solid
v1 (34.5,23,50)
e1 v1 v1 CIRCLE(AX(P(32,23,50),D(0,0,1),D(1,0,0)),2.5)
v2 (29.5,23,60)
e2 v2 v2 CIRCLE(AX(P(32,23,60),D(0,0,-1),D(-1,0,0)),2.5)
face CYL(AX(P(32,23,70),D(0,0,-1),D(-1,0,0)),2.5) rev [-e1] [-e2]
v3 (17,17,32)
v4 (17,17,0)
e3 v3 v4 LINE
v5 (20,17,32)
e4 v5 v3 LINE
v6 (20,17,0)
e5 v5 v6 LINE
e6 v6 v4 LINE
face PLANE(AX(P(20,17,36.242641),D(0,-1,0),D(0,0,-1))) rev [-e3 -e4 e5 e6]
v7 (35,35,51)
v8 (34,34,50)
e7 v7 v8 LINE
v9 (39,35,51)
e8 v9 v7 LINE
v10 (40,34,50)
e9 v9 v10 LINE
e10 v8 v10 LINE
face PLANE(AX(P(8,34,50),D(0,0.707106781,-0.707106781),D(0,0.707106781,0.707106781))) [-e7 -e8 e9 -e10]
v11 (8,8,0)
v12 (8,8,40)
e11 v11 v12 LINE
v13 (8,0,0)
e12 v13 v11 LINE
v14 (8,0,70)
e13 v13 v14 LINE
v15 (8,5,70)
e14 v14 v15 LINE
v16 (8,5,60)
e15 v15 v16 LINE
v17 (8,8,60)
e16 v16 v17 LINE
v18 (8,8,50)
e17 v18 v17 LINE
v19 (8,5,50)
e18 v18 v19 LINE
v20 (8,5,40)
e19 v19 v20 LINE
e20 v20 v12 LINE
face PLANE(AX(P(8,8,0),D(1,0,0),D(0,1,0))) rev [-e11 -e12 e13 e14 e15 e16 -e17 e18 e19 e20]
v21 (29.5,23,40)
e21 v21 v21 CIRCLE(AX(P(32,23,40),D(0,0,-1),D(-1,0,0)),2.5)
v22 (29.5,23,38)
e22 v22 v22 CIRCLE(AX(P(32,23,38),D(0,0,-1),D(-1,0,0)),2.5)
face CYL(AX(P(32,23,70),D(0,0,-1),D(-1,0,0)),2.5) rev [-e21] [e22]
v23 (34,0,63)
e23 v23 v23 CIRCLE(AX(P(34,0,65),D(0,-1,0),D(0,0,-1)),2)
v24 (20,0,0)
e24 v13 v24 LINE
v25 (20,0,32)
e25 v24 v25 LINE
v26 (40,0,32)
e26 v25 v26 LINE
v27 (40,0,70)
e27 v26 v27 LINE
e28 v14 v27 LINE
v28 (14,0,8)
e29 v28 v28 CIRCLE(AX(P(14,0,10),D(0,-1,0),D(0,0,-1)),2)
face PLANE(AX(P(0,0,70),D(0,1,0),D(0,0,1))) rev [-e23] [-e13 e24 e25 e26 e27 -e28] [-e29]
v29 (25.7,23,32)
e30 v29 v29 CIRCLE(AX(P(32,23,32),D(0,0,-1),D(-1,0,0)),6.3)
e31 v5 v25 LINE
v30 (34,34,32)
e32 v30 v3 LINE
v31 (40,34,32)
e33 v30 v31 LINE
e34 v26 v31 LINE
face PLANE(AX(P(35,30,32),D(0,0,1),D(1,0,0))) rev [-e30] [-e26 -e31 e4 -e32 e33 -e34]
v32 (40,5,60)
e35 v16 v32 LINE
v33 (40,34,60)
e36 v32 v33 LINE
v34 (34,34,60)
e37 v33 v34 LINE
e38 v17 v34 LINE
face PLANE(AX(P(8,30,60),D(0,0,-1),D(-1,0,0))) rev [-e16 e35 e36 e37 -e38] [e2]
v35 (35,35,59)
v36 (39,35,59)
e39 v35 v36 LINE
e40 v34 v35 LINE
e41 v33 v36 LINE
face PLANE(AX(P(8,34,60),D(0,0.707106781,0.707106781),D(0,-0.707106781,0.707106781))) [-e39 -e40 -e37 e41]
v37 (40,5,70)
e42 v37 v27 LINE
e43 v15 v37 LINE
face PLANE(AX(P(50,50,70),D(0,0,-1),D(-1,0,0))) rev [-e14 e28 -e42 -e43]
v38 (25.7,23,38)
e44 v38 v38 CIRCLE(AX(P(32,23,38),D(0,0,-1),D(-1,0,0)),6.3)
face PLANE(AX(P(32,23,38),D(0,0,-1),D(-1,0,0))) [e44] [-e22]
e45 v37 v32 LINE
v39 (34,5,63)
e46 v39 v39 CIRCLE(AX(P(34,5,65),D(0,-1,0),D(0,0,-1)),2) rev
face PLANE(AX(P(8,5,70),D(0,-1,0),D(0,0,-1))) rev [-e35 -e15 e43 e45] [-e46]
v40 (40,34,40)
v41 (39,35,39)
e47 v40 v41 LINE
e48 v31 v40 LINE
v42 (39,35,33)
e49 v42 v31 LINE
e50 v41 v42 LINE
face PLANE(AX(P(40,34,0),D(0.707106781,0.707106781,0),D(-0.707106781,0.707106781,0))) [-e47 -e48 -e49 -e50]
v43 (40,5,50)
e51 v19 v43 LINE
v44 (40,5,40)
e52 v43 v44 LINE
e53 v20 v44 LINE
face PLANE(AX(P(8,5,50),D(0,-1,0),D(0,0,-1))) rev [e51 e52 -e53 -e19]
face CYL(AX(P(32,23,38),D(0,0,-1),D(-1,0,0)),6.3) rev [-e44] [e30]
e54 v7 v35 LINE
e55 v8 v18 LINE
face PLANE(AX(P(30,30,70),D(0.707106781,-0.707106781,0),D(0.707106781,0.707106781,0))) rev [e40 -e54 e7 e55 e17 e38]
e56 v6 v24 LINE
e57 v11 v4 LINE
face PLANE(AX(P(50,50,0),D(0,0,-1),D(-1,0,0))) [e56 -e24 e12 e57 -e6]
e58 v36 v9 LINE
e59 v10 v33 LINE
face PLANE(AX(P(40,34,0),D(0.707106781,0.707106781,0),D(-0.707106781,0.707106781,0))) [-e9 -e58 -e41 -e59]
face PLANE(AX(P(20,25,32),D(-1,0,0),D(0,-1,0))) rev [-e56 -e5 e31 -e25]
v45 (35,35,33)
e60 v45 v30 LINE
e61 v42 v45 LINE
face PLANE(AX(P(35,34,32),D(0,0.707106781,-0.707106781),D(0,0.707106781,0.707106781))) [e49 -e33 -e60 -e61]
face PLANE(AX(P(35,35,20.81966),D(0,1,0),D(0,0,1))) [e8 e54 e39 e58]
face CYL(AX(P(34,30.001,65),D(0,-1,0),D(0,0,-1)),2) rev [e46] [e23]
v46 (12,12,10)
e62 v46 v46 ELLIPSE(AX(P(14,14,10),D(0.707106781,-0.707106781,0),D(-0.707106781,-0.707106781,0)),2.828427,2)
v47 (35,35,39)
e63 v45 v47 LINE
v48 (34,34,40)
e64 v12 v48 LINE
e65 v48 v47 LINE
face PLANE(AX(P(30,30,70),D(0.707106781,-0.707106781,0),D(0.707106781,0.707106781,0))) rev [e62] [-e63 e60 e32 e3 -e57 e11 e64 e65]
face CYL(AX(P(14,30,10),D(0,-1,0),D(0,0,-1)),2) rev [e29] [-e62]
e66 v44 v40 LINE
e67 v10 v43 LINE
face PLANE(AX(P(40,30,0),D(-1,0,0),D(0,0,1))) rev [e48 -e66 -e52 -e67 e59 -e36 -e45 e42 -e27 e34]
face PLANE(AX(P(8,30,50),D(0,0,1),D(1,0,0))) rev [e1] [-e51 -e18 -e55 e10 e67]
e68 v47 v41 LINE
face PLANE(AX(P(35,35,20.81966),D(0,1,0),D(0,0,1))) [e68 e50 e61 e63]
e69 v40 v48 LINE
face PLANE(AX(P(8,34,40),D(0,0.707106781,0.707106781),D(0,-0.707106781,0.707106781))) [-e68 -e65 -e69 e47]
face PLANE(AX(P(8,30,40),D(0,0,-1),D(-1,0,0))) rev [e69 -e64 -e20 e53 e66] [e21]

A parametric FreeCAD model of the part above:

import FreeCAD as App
import Part
import Sketcher
Q = App.Units.Quantity


def edges_at(feature, points):
    """Names of the edges that pass closest to the given points."""
    edges = feature.Shape.Edges
    near = lambda p: min(range(len(edges)), key=lambda i: edges[i].distToShape(Part.Vertex(*p))[0])
    return sorted({f"Edge{near(p) + 1}" for p in points})


def add_polygon(sketch, points):
    """Adds a closed chain of lines whose ends are joined by coincident constraints."""
    first, n = sketch.GeometryCount, len(points)
    for a, b in zip(points, points[1:] + points[:1]):
        sketch.addGeometry(Part.LineSegment(App.Vector(*a, 0), App.Vector(*b, 0)), False)
    for i in range(n):
        sketch.addConstraint(Sketcher.Constraint("Coincident", first + i, 2, first + (i + 1) % n, 1))

doc = App.newDocument("Part")
body = doc.addObject("PartDesign::Body", "Body")

# Sketch on XY plane
sketch1 = body.newObject("Sketcher::SketchObject", "Sketch")
sketch1.AttachmentSupport = (doc.getObject("XY_Plane"), [""])
sketch1.MapMode = "FlatFace"
add_polygon(sketch1, [(0, 0), (50, 0), (50, 30), (30, 30)])  # lines 0-3
sketch1.addConstraint([
    Sketcher.Constraint("Horizontal", 0),
    Sketcher.Constraint("Vertical", 1),
    Sketcher.Constraint("Horizontal", 2),
    Sketcher.Constraint("Coincident", 3, 2, -1, 1),
    Sketcher.Constraint("DistanceX", 0, 1, 0, 2, Q("50 mm")),
    Sketcher.Constraint("DistanceX", 2, 2, 2, 1, Q("20 mm")),
    Sketcher.Constraint("DistanceY", 1, 1, 1, 2, Q("30 mm")),
])
pad1 = body.newObject("PartDesign::Pad", "Pad")
pad1.Profile = sketch1
pad1.Length = 70

# Sketch on XY plane
sketch2 = body.newObject("Sketcher::SketchObject", "Sketch001")
sketch2.AttachmentSupport = (doc.getObject("XY_Plane"), [""])
sketch2.MapMode = "FlatFace"
sketch2.AttachmentOffset = App.Placement(App.Vector(0, 0, 70), App.Rotation())
add_polygon(sketch2, [(40, 30), (40, 0), (50, 0), (50, 30)])  # lines 0-3
sketch2.addConstraint([
    Sketcher.Constraint("Vertical", 0),
    Sketcher.Constraint("Horizontal", 1),
    Sketcher.Constraint("Vertical", 2),
    Sketcher.Constraint("Horizontal", 3),
    Sketcher.Constraint("PointOnObject", 0, 2, -1),
    Sketcher.Constraint("DistanceX", 1, 1, 1, 2, Q("10 mm")),
    Sketcher.Constraint("DistanceY", 0, 2, 0, 1, Q("30 mm")),
    Sketcher.Constraint("DistanceX", -1, 1, 0, 2, Q("40 mm")),
])
pocket1 = body.newObject("PartDesign::Pocket", "Pocket")
pocket1.Profile = sketch2
pocket1.Type = "ThroughAll"

# Sketch on XY plane
sketch3 = body.newObject("Sketcher::SketchObject", "Sketch002")
sketch3.AttachmentSupport = (doc.getObject("XY_Plane"), [""])
sketch3.MapMode = "FlatFace"
sketch3.AttachmentOffset = App.Placement(App.Vector(0, 0, 70), App.Rotation())
add_polygon(sketch3, [(8, 8), (0, 0), (8, 0)])  # lines 0-2
sketch3.addConstraint([
    Sketcher.Constraint("Horizontal", 1),
    Sketcher.Constraint("Vertical", 2),
    Sketcher.Constraint("Coincident", 0, 2, -1, 1),
    Sketcher.Constraint("Equal", 1, 2),
    Sketcher.Constraint("DistanceX", 1, 1, 1, 2, Q("8 mm")),
])
pocket2 = body.newObject("PartDesign::Pocket", "Pocket001")
pocket2.Profile = sketch3
pocket2.Type = "ThroughAll"

# Sketch on YZ plane
sketch4 = body.newObject("Sketcher::SketchObject", "Sketch003")
sketch4.AttachmentSupport = (doc.getObject("YZ_Plane"), [""])
sketch4.MapMode = "FlatFace"
sketch4.AttachmentOffset = App.Placement(App.Vector(0, 0, 40), App.Rotation())
add_polygon(sketch4, [(30, 70), (5, 70), (5, 60), (30, 60)])  # lines 0-3
add_polygon(sketch4, [(30, 50), (5, 50), (5, 40), (30, 40)])  # lines 4-7
sketch4.addConstraint([
    Sketcher.Constraint("Horizontal", 0),
    Sketcher.Constraint("Vertical", 1),
    Sketcher.Constraint("Horizontal", 2),
    Sketcher.Constraint("Vertical", 3),
    Sketcher.Constraint("Horizontal", 4),
    Sketcher.Constraint("Vertical", 5),
    Sketcher.Constraint("Horizontal", 6),
    Sketcher.Constraint("Vertical", 7),
    Sketcher.Constraint("Vertical", 1, 2, 4, 2),
    Sketcher.Constraint("Vertical", 3, 2, 6, 2),
    Sketcher.Constraint("Equal", 3, 5),
    Sketcher.Constraint("DistanceX", 0, 2, 0, 1, Q("25 mm")),
    Sketcher.Constraint("DistanceY", 1, 2, 1, 1, Q("10 mm")),
    Sketcher.Constraint("DistanceX", -1, 1, 0, 2, Q("5 mm")),
    Sketcher.Constraint("DistanceY", -1, 1, 0, 2, Q("70 mm")),
    Sketcher.Constraint("DistanceY", -1, 1, 4, 2, Q("50 mm")),
])
pocket3 = body.newObject("PartDesign::Pocket", "Pocket002")
pocket3.Profile = sketch4
pocket3.Type = "ThroughAll"

# Sketch on YZ plane
sketch5 = body.newObject("Sketcher::SketchObject", "Sketch004")
sketch5.AttachmentSupport = (doc.getObject("YZ_Plane"), [""])
sketch5.MapMode = "FlatFace"
sketch5.AttachmentOffset = App.Placement(App.Vector(0, 0, 8), App.Rotation())
add_polygon(sketch5, [(30, 0), (5, 0), (5, 32), (30, 32)])  # lines 0-3
sketch5.addConstraint([
    Sketcher.Constraint("Horizontal", 0),
    Sketcher.Constraint("Vertical", 1),
    Sketcher.Constraint("Horizontal", 2),
    Sketcher.Constraint("Vertical", 3),
    Sketcher.Constraint("PointOnObject", 0, 2, -1),
    Sketcher.Constraint("DistanceX", 0, 2, 0, 1, Q("25 mm")),
    Sketcher.Constraint("DistanceY", 1, 1, 1, 2, Q("32 mm")),
    Sketcher.Constraint("DistanceX", -1, 1, 0, 2, Q("5 mm")),
])
pocket4 = body.newObject("PartDesign::Pocket", "Pocket003")
pocket4.Profile = sketch5
pocket4.Length = 27
pocket4.Reversed = True

# Sketch on YZ plane
sketch6 = body.newObject("Sketcher::SketchObject", "Sketch005")
sketch6.AttachmentSupport = (doc.getObject("YZ_Plane"), [""])
sketch6.MapMode = "FlatFace"
sketch6.AttachmentOffset = App.Placement(App.Vector(0, 0, 35), App.Rotation())
add_polygon(sketch6, [(30, 32), (30, 0), (5, 0)])  # lines 0-2
sketch6.addConstraint([
    Sketcher.Constraint("Vertical", 0),
    Sketcher.Constraint("Horizontal", 1),
    Sketcher.Constraint("PointOnObject", 0, 2, -1),
    Sketcher.Constraint("DistanceX", 1, 2, 1, 1, Q("25 mm")),
    Sketcher.Constraint("DistanceY", 0, 2, 0, 1, Q("32 mm")),
    Sketcher.Constraint("DistanceX", -1, 1, 0, 2, Q("30 mm")),
])
pocket5 = body.newObject("PartDesign::Pocket", "Pocket004")
pocket5.Profile = sketch6
pocket5.Type = "ThroughAll"
pocket5.Reversed = True

# Sketch on XY plane
sketch7 = body.newObject("Sketcher::SketchObject", "Sketch006")
sketch7.AttachmentSupport = (doc.getObject("XY_Plane"), [""])
sketch7.MapMode = "FlatFace"
sketch7.AttachmentOffset = App.Placement(App.Vector(0, 0, 32), App.Rotation())
sketch7.addGeometry(Part.Circle(App.Vector(32, 23, 0), App.Vector(0, 0, 1), 6), False)
sketch7.addConstraint([
    Sketcher.Constraint("Diameter", 0, Q("12.6 mm")),
    Sketcher.Constraint("DistanceX", -1, 1, 0, 3, Q("32 mm")),
    Sketcher.Constraint("DistanceY", -1, 1, 0, 3, Q("23 mm")),
])
pocket6 = body.newObject("PartDesign::Pocket", "Pocket005")
pocket6.Profile = sketch7
pocket6.Length = 6
pocket6.Reversed = True

# Sketch on XY plane
sketch8 = body.newObject("Sketcher::SketchObject", "Sketch007")
sketch8.AttachmentSupport = (doc.getObject("XY_Plane"), [""])
sketch8.MapMode = "FlatFace"
sketch8.AttachmentOffset = App.Placement(App.Vector(0, 0, 38), App.Rotation())
sketch8.addGeometry(Part.Circle(App.Vector(32, 23, 0), App.Vector(0, 0, 1), 2.5), False)
sketch8.addConstraint([
    Sketcher.Constraint("Diameter", 0, Q("5 mm")),
    Sketcher.Constraint("DistanceX", -1, 1, 0, 3, Q("32 mm")),
    Sketcher.Constraint("DistanceY", -1, 1, 0, 3, Q("23 mm")),
])
pocket7 = body.newObject("PartDesign::Pocket", "Pocket006")
pocket7.Profile = sketch8
pocket7.Type = "ThroughAll"
pocket7.Reversed = True

# Sketch on XZ plane
sketch9 = body.newObject("Sketcher::SketchObject", "Sketch008")
sketch9.AttachmentSupport = (doc.getObject("XZ_Plane"), [""])
sketch9.MapMode = "FlatFace"
sketch9.addGeometry(Part.Circle(App.Vector(14, 10, 0), App.Vector(0, 0, 1), 2), False)
sketch9.addConstraint([
    Sketcher.Constraint("Diameter", 0, Q("4 mm")),
    Sketcher.Constraint("DistanceX", -1, 1, 0, 3, Q("14 mm")),
    Sketcher.Constraint("DistanceY", -1, 1, 0, 3, Q("10 mm")),
])
pocket8 = body.newObject("PartDesign::Pocket", "Pocket007")
pocket8.Profile = sketch9
pocket8.Type = "ThroughAll"

# Sketch on XZ plane
sketch10 = body.newObject("Sketcher::SketchObject", "Sketch009")
sketch10.AttachmentSupport = (doc.getObject("XZ_Plane"), [""])
sketch10.MapMode = "FlatFace"
sketch10.addGeometry(Part.Circle(App.Vector(34, 65, 0), App.Vector(0, 0, 1), 2), False)
sketch10.addConstraint([
    Sketcher.Constraint("Diameter", 0, Q("4 mm")),
    Sketcher.Constraint("DistanceX", -1, 1, 0, 3, Q("34 mm")),
    Sketcher.Constraint("DistanceY", -1, 1, 0, 3, Q("65 mm")),
])
pocket9 = body.newObject("PartDesign::Pocket", "Pocket008")
pocket9.Profile = sketch10
pocket9.Type = "UpToFirst"

# Sketch on YZ plane
sketch11 = body.newObject("Sketcher::SketchObject", "Sketch010")
sketch11.AttachmentSupport = (doc.getObject("YZ_Plane"), [""])
sketch11.MapMode = "FlatFace"
sketch11.AttachmentOffset = App.Placement(App.Vector(0, 0, 35), App.Rotation())
add_polygon(sketch11, [(5, 32), (30, 32), (5, 0)])  # lines 0-2
sketch11.addConstraint([
    Sketcher.Constraint("Horizontal", 0),
    Sketcher.Constraint("Vertical", 2),
    Sketcher.Constraint("PointOnObject", 1, 2, -1),
    Sketcher.Constraint("DistanceX", 0, 1, 0, 2, Q("25 mm")),
    Sketcher.Constraint("DistanceY", 2, 1, 2, 2, Q("32 mm")),
    Sketcher.Constraint("DistanceX", -1, 1, 0, 2, Q("30 mm")),
])
pocket10 = body.newObject("PartDesign::Pocket", "Pocket009")
pocket10.Profile = sketch11
pocket10.Length = 10
pocket10.Reversed = True

# Sketch on XZ plane
sketch12 = body.newObject("Sketcher::SketchObject", "Sketch011")
sketch12.AttachmentSupport = (doc.getObject("XZ_Plane"), [""])
sketch12.MapMode = "FlatFace"
sketch12.AttachmentOffset = App.Placement(App.Vector(0, 0, -5), App.Rotation())
add_polygon(sketch12, [(20, 32), (20, 0), (8, 0), (8, 32)])  # lines 0-3
sketch12.addConstraint([
    Sketcher.Constraint("Vertical", 0),
    Sketcher.Constraint("Horizontal", 1),
    Sketcher.Constraint("Vertical", 2),
    Sketcher.Constraint("Horizontal", 3),
    Sketcher.Constraint("PointOnObject", 0, 2, -1),
    Sketcher.Constraint("DistanceX", 1, 2, 1, 1, Q("12 mm")),
    Sketcher.Constraint("DistanceY", 0, 2, 0, 1, Q("32 mm")),
    Sketcher.Constraint("DistanceX", -1, 1, 0, 2, Q("20 mm")),
])
pad2 = body.newObject("PartDesign::Pad", "Pad001")
pad2.Profile = sketch12
pad2.Length = 20
pad2.Reversed = True

# Sketch on XY plane
sketch13 = body.newObject("Sketcher::SketchObject", "Sketch012")
sketch13.AttachmentSupport = (doc.getObject("XY_Plane"), [""])
sketch13.MapMode = "FlatFace"
sketch13.AttachmentOffset = App.Placement(App.Vector(0, 0, 32), App.Rotation())
add_polygon(sketch13, [(20, 20), (20, 25), (8, 25), (8, 8)])  # lines 0-3
sketch13.addConstraint([
    Sketcher.Constraint("Vertical", 0),
    Sketcher.Constraint("Horizontal", 1),
    Sketcher.Constraint("Vertical", 2),
    Sketcher.Constraint("DistanceX", 1, 2, 1, 1, Q("12 mm")),
    Sketcher.Constraint("DistanceY", 0, 1, 0, 2, Q("5 mm")),
    Sketcher.Constraint("DistanceY", 2, 2, 2, 1, Q("17 mm")),
    Sketcher.Constraint("DistanceX", -1, 1, 0, 2, Q("20 mm")),
    Sketcher.Constraint("DistanceY", -1, 1, 0, 2, Q("25 mm")),
])
pocket11 = body.newObject("PartDesign::Pocket", "Pocket010")
pocket11.Profile = sketch13
pocket11.Type = "ThroughAll"

# Sketch on XY plane
sketch14 = body.newObject("Sketcher::SketchObject", "Sketch013")
sketch14.AttachmentSupport = (doc.getObject("XY_Plane"), [""])
sketch14.MapMode = "FlatFace"
add_polygon(sketch14, [(20, 20), (20, 17), (17, 17)])  # lines 0-2
sketch14.addConstraint([
    Sketcher.Constraint("Vertical", 0),
    Sketcher.Constraint("Horizontal", 1),
    Sketcher.Constraint("Equal", 1, 0),
    Sketcher.Constraint("DistanceX", 1, 2, 1, 1, Q("3 mm")),
    Sketcher.Constraint("DistanceX", -1, 1, 0, 2, Q("20 mm")),
    Sketcher.Constraint("DistanceY", -1, 1, 0, 2, Q("17 mm")),
])
pocket12 = body.newObject("PartDesign::Pocket", "Pocket011")
pocket12.Profile = sketch14
pocket12.Length = 32
pocket12.Reversed = True

# Sketch on XZ plane
sketch15 = body.newObject("Sketcher::SketchObject", "Sketch014")
sketch15.AttachmentSupport = (doc.getObject("XZ_Plane"), [""])
sketch15.MapMode = "FlatFace"
sketch15.AttachmentOffset = App.Placement(App.Vector(0, 0, -5), App.Rotation())
add_polygon(sketch15, [(40, 32), (40, 0), (20, 0), (20, 32)])  # lines 0-3
sketch15.addConstraint([
    Sketcher.Constraint("Vertical", 0),
    Sketcher.Constraint("Horizontal", 1),
    Sketcher.Constraint("Vertical", 2),
    Sketcher.Constraint("Horizontal", 3),
    Sketcher.Constraint("PointOnObject", 0, 2, -1),
    Sketcher.Constraint("DistanceX", 1, 2, 1, 1, Q("20 mm")),
    Sketcher.Constraint("DistanceY", 0, 2, 0, 1, Q("32 mm")),
    Sketcher.Constraint("DistanceX", -1, 1, 0, 2, Q("40 mm")),
])
pocket13 = body.newObject("PartDesign::Pocket", "Pocket012")
pocket13.Profile = sketch15
pocket13.Type = "ThroughAll"
pocket13.Reversed = True

# Sketch on XY plane
sketch16 = body.newObject("Sketcher::SketchObject", "Sketch015")
sketch16.AttachmentSupport = (doc.getObject("XY_Plane"), [""])
sketch16.MapMode = "FlatFace"
sketch16.AttachmentOffset = App.Placement(App.Vector(0, 0, 60), App.Rotation())
add_polygon(sketch16, [(35, 35), (30, 30), (40, 30), (40, 35)])  # lines 0-3
sketch16.addConstraint([
    Sketcher.Constraint("Horizontal", 1),
    Sketcher.Constraint("Vertical", 2),
    Sketcher.Constraint("Horizontal", 3),
    Sketcher.Constraint("Equal", 3, 2),
    Sketcher.Constraint("DistanceX", 1, 1, 1, 2, Q("10 mm")),
    Sketcher.Constraint("DistanceX", 3, 2, 3, 1, Q("5 mm")),
    Sketcher.Constraint("DistanceX", -1, 1, 0, 2, Q("30 mm")),
    Sketcher.Constraint("DistanceY", -1, 1, 0, 2, Q("30 mm")),
])
pad3 = body.newObject("PartDesign::Pad", "Pad002")
pad3.Profile = sketch16
pad3.Length = 28
pad3.Reversed = True

# Sketch on YZ plane
sketch17 = body.newObject("Sketcher::SketchObject", "Sketch016")
sketch17.AttachmentSupport = (doc.getObject("YZ_Plane"), [""])
sketch17.MapMode = "FlatFace"
sketch17.AttachmentOffset = App.Placement(App.Vector(0, 0, 40), App.Rotation())
add_polygon(sketch17, [(35, 50), (30, 50), (30, 40), (35, 40)])  # lines 0-3
sketch17.addConstraint([
    Sketcher.Constraint("Horizontal", 0),
    Sketcher.Constraint("Vertical", 1),
    Sketcher.Constraint("Horizontal", 2),
    Sketcher.Constraint("Vertical", 3),
    Sketcher.Constraint("DistanceX", 0, 2, 0, 1, Q("5 mm")),
    Sketcher.Constraint("DistanceY", 1, 2, 1, 1, Q("10 mm")),
    Sketcher.Constraint("DistanceX", -1, 1, 0, 2, Q("30 mm")),
    Sketcher.Constraint("DistanceY", -1, 1, 0, 2, Q("50 mm")),
])
pocket14 = body.newObject("PartDesign::Pocket", "Pocket013")
pocket14.Profile = sketch17
pocket14.Type = "ThroughAll"
doc.recompute()

chamfer = body.newObject("PartDesign::Chamfer", "Chamfer")
chamfer.Base = (pocket14, edges_at(pocket14, [
    (37.5, 35, 60),
    (37.5, 35, 32),
    (37.5, 35, 40),
    (37.5, 35, 50),
]))
chamfer.Size = 1
doc.recompute()

chamfer2 = body.newObject("PartDesign::Chamfer", "Chamfer001")
chamfer2.Base = (chamfer, edges_at(chamfer, [(40, 35, 36), (40, 35, 55)]))
chamfer2.Size = 1

# Sketch on XZ plane
sketch18 = body.newObject("Sketcher::SketchObject", "Sketch017")
sketch18.AttachmentSupport = (doc.getObject("XZ_Plane"), [""])
sketch18.MapMode = "FlatFace"
sketch18.AttachmentOffset = App.Placement(App.Vector(0, 0, -5), App.Rotation())
sketch18.addGeometry(Part.Circle(App.Vector(14, 10, 0), App.Vector(0, 0, 1), 2), False)
sketch18.addConstraint([
    Sketcher.Constraint("Diameter", 0, Q("4 mm")),
    Sketcher.Constraint("DistanceX", -1, 1, 0, 3, Q("14 mm")),
    Sketcher.Constraint("DistanceY", -1, 1, 0, 3, Q("10 mm")),
])
pocket15 = body.newObject("PartDesign::Pocket", "Pocket014")
pocket15.Profile = sketch18
pocket15.Length = 20

doc.recompute()
